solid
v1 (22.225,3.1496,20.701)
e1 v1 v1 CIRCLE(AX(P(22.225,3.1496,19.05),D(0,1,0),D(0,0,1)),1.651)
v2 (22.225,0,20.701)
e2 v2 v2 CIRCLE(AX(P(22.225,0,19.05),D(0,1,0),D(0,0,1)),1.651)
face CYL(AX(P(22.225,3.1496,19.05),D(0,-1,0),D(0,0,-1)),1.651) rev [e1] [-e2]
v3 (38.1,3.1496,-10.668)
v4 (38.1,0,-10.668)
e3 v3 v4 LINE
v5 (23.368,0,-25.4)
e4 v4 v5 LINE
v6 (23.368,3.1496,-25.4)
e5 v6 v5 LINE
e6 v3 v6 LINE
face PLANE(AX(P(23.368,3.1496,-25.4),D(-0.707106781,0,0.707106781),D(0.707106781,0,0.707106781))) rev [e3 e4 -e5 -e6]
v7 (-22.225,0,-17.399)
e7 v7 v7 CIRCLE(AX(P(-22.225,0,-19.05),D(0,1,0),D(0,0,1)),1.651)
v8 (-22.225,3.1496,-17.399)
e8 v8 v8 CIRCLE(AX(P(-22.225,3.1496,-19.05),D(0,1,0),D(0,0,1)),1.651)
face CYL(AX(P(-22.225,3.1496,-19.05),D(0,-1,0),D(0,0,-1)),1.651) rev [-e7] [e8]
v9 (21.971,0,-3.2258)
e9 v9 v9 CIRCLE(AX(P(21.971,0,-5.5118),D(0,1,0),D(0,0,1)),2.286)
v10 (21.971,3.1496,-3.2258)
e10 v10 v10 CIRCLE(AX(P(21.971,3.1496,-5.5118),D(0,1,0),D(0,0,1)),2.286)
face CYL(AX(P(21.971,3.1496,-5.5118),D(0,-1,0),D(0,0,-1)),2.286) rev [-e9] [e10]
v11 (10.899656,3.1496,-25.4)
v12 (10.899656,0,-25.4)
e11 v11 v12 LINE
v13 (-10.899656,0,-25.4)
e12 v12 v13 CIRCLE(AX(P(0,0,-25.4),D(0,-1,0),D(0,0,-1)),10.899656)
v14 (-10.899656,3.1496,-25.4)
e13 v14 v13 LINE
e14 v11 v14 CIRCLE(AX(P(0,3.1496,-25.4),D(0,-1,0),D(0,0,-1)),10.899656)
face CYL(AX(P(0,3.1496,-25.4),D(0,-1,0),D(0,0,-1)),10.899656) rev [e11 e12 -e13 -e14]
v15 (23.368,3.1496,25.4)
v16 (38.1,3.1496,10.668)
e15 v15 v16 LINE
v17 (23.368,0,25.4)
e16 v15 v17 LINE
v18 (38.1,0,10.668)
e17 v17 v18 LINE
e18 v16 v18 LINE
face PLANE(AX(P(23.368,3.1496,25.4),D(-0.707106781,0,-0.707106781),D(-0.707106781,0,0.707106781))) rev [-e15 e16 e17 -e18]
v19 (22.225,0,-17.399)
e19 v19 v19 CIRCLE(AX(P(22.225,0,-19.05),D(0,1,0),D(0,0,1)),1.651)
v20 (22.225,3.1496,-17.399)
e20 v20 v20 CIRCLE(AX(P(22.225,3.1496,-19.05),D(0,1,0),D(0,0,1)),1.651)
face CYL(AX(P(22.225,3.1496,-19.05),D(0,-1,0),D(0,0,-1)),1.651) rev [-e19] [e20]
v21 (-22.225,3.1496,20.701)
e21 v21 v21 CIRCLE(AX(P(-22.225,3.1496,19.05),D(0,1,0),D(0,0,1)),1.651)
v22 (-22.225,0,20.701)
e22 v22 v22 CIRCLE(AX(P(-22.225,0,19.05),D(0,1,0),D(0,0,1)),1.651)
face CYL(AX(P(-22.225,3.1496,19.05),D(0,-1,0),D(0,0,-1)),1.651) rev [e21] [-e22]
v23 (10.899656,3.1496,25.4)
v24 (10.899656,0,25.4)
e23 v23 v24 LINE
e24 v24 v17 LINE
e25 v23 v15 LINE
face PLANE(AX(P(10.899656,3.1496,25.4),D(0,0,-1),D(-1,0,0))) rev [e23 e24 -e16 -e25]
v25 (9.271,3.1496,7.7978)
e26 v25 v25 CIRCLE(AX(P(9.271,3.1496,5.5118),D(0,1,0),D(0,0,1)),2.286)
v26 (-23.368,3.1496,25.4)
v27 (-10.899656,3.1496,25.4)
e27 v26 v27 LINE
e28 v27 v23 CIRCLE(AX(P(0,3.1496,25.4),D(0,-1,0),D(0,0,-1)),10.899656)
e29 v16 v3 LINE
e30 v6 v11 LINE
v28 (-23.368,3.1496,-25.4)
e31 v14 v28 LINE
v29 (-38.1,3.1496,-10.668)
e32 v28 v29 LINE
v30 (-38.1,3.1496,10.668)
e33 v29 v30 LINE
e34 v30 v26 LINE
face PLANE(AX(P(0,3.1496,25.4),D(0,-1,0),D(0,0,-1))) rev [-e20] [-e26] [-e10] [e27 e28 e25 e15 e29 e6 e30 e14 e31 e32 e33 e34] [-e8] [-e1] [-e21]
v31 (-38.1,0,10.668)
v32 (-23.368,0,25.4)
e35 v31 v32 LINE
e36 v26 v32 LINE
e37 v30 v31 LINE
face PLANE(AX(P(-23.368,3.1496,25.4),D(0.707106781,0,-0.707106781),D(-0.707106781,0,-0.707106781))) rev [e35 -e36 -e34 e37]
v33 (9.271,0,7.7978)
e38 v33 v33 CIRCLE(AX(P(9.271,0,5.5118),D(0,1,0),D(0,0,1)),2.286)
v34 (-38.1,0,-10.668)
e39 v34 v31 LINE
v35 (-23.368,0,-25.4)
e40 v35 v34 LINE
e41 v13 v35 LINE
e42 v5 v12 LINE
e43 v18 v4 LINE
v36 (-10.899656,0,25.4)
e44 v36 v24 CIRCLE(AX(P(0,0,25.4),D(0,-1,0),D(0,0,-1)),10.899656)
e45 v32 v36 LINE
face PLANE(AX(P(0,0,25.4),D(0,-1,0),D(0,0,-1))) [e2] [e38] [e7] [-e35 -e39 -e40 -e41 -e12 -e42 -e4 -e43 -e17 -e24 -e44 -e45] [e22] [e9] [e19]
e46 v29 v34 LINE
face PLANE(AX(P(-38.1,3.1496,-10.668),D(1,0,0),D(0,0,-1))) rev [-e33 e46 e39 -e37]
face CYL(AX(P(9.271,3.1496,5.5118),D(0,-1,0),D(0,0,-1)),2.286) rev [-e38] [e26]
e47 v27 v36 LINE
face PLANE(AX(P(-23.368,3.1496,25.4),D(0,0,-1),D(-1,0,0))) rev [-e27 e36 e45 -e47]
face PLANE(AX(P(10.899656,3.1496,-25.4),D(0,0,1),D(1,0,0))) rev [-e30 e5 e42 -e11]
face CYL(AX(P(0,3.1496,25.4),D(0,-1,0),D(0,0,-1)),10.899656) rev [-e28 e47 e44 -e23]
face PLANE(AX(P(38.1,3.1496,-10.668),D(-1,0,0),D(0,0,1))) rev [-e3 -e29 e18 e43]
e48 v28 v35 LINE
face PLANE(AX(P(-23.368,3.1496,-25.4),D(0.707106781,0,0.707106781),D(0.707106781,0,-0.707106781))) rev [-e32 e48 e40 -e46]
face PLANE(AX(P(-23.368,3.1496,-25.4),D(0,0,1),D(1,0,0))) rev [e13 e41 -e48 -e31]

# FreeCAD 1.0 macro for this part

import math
import FreeCAD as App
import Part
import Sketcher
Q = App.Units.Quantity

doc = App.newDocument("Part")
body = doc.addObject("PartDesign::Body", "Body")

sketch1 = body.newObject("Sketcher::SketchObject", "Sketch")
sketch1.AttachmentSupport = (doc.getObject("XZ_Plane"), [""])
sketch1.MapMode = "FlatFace"
sketch1.addGeometry(Part.LineSegment(App.Vector(23.368, 25.4, 0), App.Vector(38.1, 10.668, 0)), False)
sketch1.addGeometry(Part.LineSegment(App.Vector(38.1, 10.668, 0), App.Vector(38.1, -10.668, 0)), False)
sketch1.addGeometry(Part.LineSegment(App.Vector(38.1, -10.668, 0), App.Vector(23.368, -25.4, 0)), False)
sketch1.addGeometry(Part.LineSegment(App.Vector(23.368, -25.4, 0), App.Vector(10.899656, -25.4, 0)), False)
sketch1.addGeometry(Part.ArcOfCircle(Part.Circle(App.Vector(0, -25.4, 0), App.Vector(0, 0, 1), 10.899656), math.radians(0), math.radians(180)), False)
sketch1.addGeometry(Part.LineSegment(App.Vector(-10.899656, -25.4, 0), App.Vector(-23.368, -25.4, 0)), False)
sketch1.addGeometry(Part.LineSegment(App.Vector(-23.368, -25.4, 0), App.Vector(-38.1, -10.668, 0)), False)
sketch1.addGeometry(Part.LineSegment(App.Vector(-38.1, -10.668, 0), App.Vector(-38.1, 10.668, 0)), False)
sketch1.addGeometry(Part.LineSegment(App.Vector(-38.1, 10.668, 0), App.Vector(-23.368, 25.4, 0)), False)
sketch1.addGeometry(Part.LineSegment(App.Vector(-23.368, 25.4, 0), App.Vector(-10.899656, 25.4, 0)), False)
sketch1.addGeometry(Part.ArcOfCircle(Part.Circle(App.Vector(0, 25.4, 0), App.Vector(0, 0, 1), 10.899656), math.radians(180), math.radians(360)), False)
sketch1.addGeometry(Part.LineSegment(App.Vector(10.899656, 25.4, 0), App.Vector(23.368, 25.4, 0)), False)
sketch1.addGeometry(Part.Circle(App.Vector(-22.225, 19.05, 0), App.Vector(0, 0, 1), 1.651), False)
sketch1.addGeometry(Part.Circle(App.Vector(22.225, 19.05, 0), App.Vector(0, 0, 1), 1.651), False)
sketch1.addGeometry(Part.Circle(App.Vector(9.271, 5.5118, 0), App.Vector(0, 0, 1), 2.286), False)
sketch1.addGeometry(Part.Circle(App.Vector(-22.225, -19.05, 0), App.Vector(0, 0, 1), 1.651), False)
sketch1.addGeometry(Part.Circle(App.Vector(21.971, -5.5118, 0), App.Vector(0, 0, 1), 2.286), False)
sketch1.addGeometry(Part.Circle(App.Vector(22.225, -19.05, 0), App.Vector(0, 0, 1), 1.651), False)
sketch1.addConstraint(Sketcher.Constraint("Coincident", 0, 2, 1, 1))
sketch1.addConstraint(Sketcher.Constraint("Coincident", 1, 2, 2, 1))
sketch1.addConstraint(Sketcher.Constraint("Coincident", 2, 2, 3, 1))
sketch1.addConstraint(Sketcher.Constraint("Coincident", 3, 2, 4, 1))
sketch1.addConstraint(Sketcher.Constraint("Coincident", 4, 2, 5, 1))
sketch1.addConstraint(Sketcher.Constraint("Coincident", 5, 2, 6, 1))
sketch1.addConstraint(Sketcher.Constraint("Coincident", 6, 2, 7, 1))
sketch1.addConstraint(Sketcher.Constraint("Coincident", 7, 2, 8, 1))
sketch1.addConstraint(Sketcher.Constraint("Coincident", 8, 2, 9, 1))
sketch1.addConstraint(Sketcher.Constraint("Coincident", 9, 2, 10, 1))
sketch1.addConstraint(Sketcher.Constraint("Coincident", 10, 2, 11, 1))
sketch1.addConstraint(Sketcher.Constraint("Coincident", 11, 2, 0, 1))
sketch1.addConstraint(Sketcher.Constraint("Vertical", 1))
sketch1.addConstraint(Sketcher.Constraint("Horizontal", 3))
sketch1.addConstraint(Sketcher.Constraint("Horizontal", 5))
sketch1.addConstraint(Sketcher.Constraint("Vertical", 7))
sketch1.addConstraint(Sketcher.Constraint("Horizontal", 9))
sketch1.addConstraint(Sketcher.Constraint("Horizontal", 11))
sketch1.addConstraint(Sketcher.Constraint("Equal", 4, 10))
sketch1.addConstraint(Sketcher.Constraint("Equal", 12, 13))
sketch1.addConstraint(Sketcher.Constraint("Equal", 13, 15))
sketch1.addConstraint(Sketcher.Constraint("Equal", 14, 16))
sketch1.addConstraint(Sketcher.Constraint("Equal", 15, 17))
sketch1.addConstraint(Sketcher.Constraint("Symmetric", 4, 3, 10, 3, -1, 1))
sketch1.addConstraint(Sketcher.Constraint("Symmetric", 13, 3, 15, 3, -1, 1))
sketch1.addConstraint(Sketcher.Constraint("Symmetric", 12, 3, 17, 3, -1, 1))
sketch1.addConstraint(Sketcher.Constraint("Symmetric", 0, 2, 6, 2, -1, 1))
sketch1.addConstraint(Sketcher.Constraint("Symmetric", 2, 2, 8, 2, -1, 1))
sketch1.addConstraint(Sketcher.Constraint("Symmetric", 5, 2, 11, 2, -1, 1))
sketch1.addConstraint(Sketcher.Constraint("Symmetric", 12, 3, 13, 3, -2))
sketch1.addConstraint(Sketcher.Constraint("Symmetric", 3, 2, 4, 2, -2))
sketch1.addConstraint(Sketcher.Constraint("Perpendicular", 0, 2))
sketch1.addConstraint(Sketcher.Constraint("Perpendicular", 6, 8))
sketch1.addConstraint(Sketcher.Constraint("Horizontal", 4, 3, 2, 2))
sketch1.addConstraint(Sketcher.Constraint("Horizontal", 1, 2, 6, 2))
sketch1.addConstraint(Sketcher.Constraint("Vertical", 5, 2, 8, 2))
sketch1.addConstraint(Sketcher.Constraint("Diameter", 12, Q("0.13 in")))
sketch1.addConstraint(Sketcher.Constraint("Diameter", 14, Q("0.18 in")))
sketch1.addConstraint(Sketcher.Constraint("DistanceY", 4, 3, -1, 1, Q("1 in")))
sketch1.addConstraint(Sketcher.Constraint("DistanceY", 1, 2, 1, 1, Q("0.84 in")))
sketch1.addConstraint(Sketcher.Constraint("DistanceX", -1, 1, 0, 2, Q("1.5 in")))
sketch1.addConstraint(Sketcher.Constraint("DistanceY", 15, 3, 12, 3, Q("1.5 in")))
sketch1.addConstraint(Sketcher.Constraint("DistanceX", 14, 3, 16, 3, Q("0.5 in")))
sketch1.addConstraint(Sketcher.Constraint("DistanceX", 12, 3, 13, 3, Q("1.75 in")))
sketch1.addConstraint(Sketcher.Constraint("DistanceX", 14, 3, 13, 3, Q("0.51 in")))
sketch1.addConstraint(Sketcher.Constraint("DistanceY", -1, 1, 14, 3, Q("0.217 in")))
sketch1.addConstraint(Sketcher.Constraint("DistanceY", 16, 3, -1, 1, Q("0.217 in")))
sketch1.addConstraint(Sketcher.Constraint("Radius", 4, Q("10.899656 mm")))
pad1 = body.newObject("PartDesign::Pad", "Pad")
pad1.Profile = sketch1
pad1.Length = Q("0.124 in")
pad1.Reversed = True

doc.recompute()
